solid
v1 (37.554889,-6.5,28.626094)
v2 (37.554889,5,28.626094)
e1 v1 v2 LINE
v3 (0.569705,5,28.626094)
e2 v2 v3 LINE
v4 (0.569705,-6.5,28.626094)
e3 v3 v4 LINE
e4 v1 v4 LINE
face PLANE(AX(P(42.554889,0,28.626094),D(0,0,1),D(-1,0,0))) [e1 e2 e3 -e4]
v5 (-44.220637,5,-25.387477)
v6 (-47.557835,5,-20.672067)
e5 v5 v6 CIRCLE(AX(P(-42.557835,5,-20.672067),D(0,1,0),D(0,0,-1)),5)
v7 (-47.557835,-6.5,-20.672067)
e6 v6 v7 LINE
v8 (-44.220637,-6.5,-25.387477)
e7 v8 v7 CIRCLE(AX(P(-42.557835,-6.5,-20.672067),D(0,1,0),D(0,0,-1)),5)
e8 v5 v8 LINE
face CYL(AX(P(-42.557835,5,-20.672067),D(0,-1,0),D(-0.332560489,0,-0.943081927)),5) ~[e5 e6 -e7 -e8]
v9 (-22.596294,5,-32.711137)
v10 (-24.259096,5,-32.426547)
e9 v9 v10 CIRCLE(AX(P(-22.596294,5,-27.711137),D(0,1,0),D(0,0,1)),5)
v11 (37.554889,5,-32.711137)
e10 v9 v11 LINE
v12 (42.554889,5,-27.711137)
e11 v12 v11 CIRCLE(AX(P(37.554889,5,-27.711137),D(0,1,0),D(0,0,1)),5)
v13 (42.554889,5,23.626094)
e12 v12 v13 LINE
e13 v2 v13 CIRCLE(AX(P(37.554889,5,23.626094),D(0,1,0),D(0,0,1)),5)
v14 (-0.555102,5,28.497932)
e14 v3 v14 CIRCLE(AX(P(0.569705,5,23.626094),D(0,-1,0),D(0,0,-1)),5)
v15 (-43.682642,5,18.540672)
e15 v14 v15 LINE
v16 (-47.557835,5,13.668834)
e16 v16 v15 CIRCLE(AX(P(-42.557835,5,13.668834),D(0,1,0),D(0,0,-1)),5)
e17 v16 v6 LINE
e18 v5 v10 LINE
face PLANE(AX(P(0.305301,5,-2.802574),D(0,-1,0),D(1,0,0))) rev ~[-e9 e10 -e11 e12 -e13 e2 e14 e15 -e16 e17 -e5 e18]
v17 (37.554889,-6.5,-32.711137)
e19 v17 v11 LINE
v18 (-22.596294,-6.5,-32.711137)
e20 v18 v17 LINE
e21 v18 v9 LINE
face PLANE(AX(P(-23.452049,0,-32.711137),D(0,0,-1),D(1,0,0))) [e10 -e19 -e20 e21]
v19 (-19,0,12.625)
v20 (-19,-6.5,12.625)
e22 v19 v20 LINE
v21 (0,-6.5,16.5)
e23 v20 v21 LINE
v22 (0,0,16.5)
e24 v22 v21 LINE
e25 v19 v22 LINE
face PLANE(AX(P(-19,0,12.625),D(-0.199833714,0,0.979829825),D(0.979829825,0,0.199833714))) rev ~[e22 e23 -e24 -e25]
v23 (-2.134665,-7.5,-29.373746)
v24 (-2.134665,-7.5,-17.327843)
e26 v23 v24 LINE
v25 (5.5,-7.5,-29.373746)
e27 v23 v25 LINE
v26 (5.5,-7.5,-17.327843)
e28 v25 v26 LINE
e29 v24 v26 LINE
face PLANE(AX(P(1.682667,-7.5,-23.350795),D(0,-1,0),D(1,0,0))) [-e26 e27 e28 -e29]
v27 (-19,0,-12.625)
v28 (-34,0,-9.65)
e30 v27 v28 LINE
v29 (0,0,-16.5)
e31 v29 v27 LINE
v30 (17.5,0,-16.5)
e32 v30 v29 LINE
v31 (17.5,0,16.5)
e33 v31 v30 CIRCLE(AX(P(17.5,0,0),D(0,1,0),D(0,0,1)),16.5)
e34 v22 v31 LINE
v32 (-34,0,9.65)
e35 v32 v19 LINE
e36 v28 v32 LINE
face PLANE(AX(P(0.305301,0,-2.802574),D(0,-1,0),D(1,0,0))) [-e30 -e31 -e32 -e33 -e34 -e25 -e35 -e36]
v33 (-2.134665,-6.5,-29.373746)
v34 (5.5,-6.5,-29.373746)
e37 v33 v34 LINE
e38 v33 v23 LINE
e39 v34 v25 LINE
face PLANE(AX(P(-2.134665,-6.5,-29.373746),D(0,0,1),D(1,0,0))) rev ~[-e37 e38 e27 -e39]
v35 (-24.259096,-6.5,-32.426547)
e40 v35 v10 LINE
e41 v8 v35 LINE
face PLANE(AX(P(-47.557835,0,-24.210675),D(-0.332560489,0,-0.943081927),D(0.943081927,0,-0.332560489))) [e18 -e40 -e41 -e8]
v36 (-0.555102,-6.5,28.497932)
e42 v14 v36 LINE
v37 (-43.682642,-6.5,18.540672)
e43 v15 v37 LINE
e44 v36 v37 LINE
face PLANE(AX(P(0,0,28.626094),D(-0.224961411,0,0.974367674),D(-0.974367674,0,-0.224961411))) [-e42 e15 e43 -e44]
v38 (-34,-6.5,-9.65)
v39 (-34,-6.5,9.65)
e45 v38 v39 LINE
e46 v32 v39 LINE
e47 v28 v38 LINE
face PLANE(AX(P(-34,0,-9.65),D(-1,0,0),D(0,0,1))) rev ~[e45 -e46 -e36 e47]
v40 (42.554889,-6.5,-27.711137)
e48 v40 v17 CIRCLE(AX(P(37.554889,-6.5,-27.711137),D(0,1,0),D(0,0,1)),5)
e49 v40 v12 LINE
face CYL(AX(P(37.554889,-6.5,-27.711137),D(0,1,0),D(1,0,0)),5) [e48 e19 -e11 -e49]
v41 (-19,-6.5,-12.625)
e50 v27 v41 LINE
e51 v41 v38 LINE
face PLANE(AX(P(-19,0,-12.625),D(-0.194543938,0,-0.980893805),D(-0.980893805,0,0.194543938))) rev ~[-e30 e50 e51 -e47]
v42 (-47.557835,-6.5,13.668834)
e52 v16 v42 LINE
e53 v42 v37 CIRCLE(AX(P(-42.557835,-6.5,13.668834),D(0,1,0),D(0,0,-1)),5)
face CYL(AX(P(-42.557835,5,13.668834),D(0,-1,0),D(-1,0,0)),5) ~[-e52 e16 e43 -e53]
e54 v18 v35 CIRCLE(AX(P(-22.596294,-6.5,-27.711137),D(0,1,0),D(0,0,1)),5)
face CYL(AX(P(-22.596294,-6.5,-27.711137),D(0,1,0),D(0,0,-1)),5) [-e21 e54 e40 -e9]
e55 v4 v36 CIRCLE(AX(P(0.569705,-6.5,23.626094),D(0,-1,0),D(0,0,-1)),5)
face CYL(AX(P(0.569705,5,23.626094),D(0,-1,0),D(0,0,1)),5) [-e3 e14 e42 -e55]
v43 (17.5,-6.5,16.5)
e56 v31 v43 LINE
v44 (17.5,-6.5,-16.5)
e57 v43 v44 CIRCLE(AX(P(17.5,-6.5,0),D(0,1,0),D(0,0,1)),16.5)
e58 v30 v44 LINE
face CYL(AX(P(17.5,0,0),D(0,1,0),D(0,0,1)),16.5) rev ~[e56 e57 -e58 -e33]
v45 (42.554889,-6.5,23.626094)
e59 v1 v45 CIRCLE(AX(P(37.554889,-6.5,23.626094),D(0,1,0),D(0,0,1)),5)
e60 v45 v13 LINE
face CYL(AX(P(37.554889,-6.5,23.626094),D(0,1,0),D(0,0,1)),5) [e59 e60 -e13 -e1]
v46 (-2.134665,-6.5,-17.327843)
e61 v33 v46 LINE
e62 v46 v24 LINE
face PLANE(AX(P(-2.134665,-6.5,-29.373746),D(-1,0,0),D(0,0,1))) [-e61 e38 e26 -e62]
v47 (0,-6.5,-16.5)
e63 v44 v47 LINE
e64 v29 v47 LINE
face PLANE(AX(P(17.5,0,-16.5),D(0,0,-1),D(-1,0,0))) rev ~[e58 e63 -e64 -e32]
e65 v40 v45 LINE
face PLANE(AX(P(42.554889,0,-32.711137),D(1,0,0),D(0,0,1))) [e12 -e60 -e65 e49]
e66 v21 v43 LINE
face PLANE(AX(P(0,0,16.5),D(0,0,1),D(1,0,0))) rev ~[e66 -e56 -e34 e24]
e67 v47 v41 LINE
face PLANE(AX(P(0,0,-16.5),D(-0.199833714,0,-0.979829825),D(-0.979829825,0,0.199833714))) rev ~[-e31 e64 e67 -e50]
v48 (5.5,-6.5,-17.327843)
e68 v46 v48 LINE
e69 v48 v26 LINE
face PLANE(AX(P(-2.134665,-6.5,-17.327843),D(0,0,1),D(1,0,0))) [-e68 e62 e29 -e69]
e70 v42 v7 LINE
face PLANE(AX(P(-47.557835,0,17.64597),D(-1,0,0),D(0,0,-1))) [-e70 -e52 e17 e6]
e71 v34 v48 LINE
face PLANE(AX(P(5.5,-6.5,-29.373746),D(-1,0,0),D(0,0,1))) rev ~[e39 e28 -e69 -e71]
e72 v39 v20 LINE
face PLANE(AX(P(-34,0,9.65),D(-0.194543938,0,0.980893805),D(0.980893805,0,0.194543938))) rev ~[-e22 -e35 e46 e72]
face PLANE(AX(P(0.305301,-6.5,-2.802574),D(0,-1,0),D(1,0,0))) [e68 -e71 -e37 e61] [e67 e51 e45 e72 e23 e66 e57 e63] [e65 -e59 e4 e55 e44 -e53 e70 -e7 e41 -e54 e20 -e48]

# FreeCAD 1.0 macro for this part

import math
import FreeCAD as App
import Part
import Sketcher

V = App.Vector


def edges_at(feature, points):
    """Names of the edges that pass closest to the given points."""
    edges = feature.Shape.Edges
    near = lambda p: min(range(len(edges)), key=lambda i: edges[i].distToShape(Part.Vertex(*p))[0])
    return sorted({f"Edge{near(p) + 1}" for p in points})

doc = App.newDocument("Part")
body = doc.addObject("PartDesign::Body", "Body")

sketch1 = body.newObject("Sketcher::SketchObject", "Sketch")
sketch1.AttachmentSupport = (doc.getObject("XZ_Plane"), [""])
sketch1.MapMode = "FlatFace"
sketch1.addGeometry([
    Part.LineSegment(V(43, 29, 0), V(0, 29, 0)),
    Part.LineSegment(V(0, 29, 0), V(-48, 18, 0)),
    Part.LineSegment(V(-48, 18, 0), V(-48, -24, 0)),
    Part.LineSegment(V(-48, -24, 0), V(-23, -33, 0)),
    Part.LineSegment(V(-23, -33, 0), V(43, -33, 0)),
    Part.LineSegment(V(43, -33, 0), V(43, 29, 0)),
    Part.LineSegment(V(-34, 10, 0), V(-19, 13, 0)),
    Part.LineSegment(V(-19, 13, 0), V(0, 16, 0)),
    Part.LineSegment(V(0, 16, 0), V(18, 16, 0)),
    Part.ArcOfCircle(Part.Circle(V(18, 0, 0), V(0, 0, 1), 16), math.radians(-90), math.radians(90)),
    Part.LineSegment(V(18, -16, 0), V(0, -16, 0)),
    Part.LineSegment(V(0, -16, 0), V(-19, -13, 0)),
    Part.LineSegment(V(-19, -13, 0), V(-34, -10, 0)),
    Part.LineSegment(V(-34, -10, 0), V(-34, 10, 0)),
], False)
sketch1.addConstraint([
    Sketcher.Constraint("Coincident", 0, 2, 1, 1),
    Sketcher.Constraint("Coincident", 1, 2, 2, 1),
    Sketcher.Constraint("Coincident", 2, 2, 3, 1),
    Sketcher.Constraint("Coincident", 3, 2, 4, 1),
    Sketcher.Constraint("Coincident", 4, 2, 5, 1),
    Sketcher.Constraint("Coincident", 5, 2, 0, 1),
    Sketcher.Constraint("Coincident", 6, 2, 7, 1),
    Sketcher.Constraint("Coincident", 7, 2, 8, 1),
    Sketcher.Constraint("Tangent", 8, 2, 9, 2),
    Sketcher.Constraint("Tangent", 9, 1, 10, 1),
    Sketcher.Constraint("Coincident", 10, 2, 11, 1),
    Sketcher.Constraint("Coincident", 11, 2, 12, 1),
    Sketcher.Constraint("Coincident", 12, 2, 13, 1),
    Sketcher.Constraint("Coincident", 13, 2, 6, 1),
    Sketcher.Constraint("Horizontal", 0),
    Sketcher.Constraint("Vertical", 2),
    Sketcher.Constraint("Horizontal", 4),
    Sketcher.Constraint("Vertical", 5),
    Sketcher.Constraint("Horizontal", 8),
    Sketcher.Constraint("Horizontal", 10),
    Sketcher.Constraint("Vertical", 13),
    Sketcher.Constraint("Symmetric", 7, 2, 10, 2, -1, 1),
    Sketcher.Constraint("Symmetric", 6, 2, 11, 2, -1),
    Sketcher.Constraint("PointOnObject", 0, 2, -2),
    Sketcher.Constraint("PointOnObject", 7, 2, -2),
    Sketcher.Constraint("Equal", 6, 12),
    Sketcher.Constraint("Radius", 9, 16.5),
    Sketcher.Constraint("DistanceX", 8, 1, 8, 2, 17.5),
    Sketcher.Constraint("DistanceY", 13, 1, 13, 2, 19.3),
    Sketcher.Constraint("DistanceX", 6, 2, -1, 1, 19.0),
    Sketcher.Constraint("DistanceX", 12, 2, -1, 1, 34.0),
    Sketcher.Constraint("DistanceY", 11, 2, 6, 2, 25.25),
    Sketcher.Constraint("DistanceX", 0, 2, 0, 1, 42.554889),
    Sketcher.Constraint("DistanceY", 5, 1, 5, 2, 61.337231),
    Sketcher.Constraint("Distance", 1, 48.808921),
    Sketcher.Constraint("Distance", 3, 25.560648),
    Sketcher.Constraint("DistanceX", 4, 1, 4, 2, 66.006938),
    Sketcher.Constraint("DistanceY", 2, 2, 2, 1, 41.856645),
    Sketcher.Constraint("DistanceY", -1, 1, 1, 2, 17.64597),
])
pad1 = body.newObject("PartDesign::Pad", "Pad")
pad1.Profile = sketch1
pad1.Length = 6.5

sketch2 = body.newObject("Sketcher::SketchObject", "Sketch001")
sketch2.AttachmentSupport = (doc.getObject("XZ_Plane"), [""])
sketch2.MapMode = "FlatFace"
sketch2.addGeometry([
    Part.LineSegment(V(43, 29, 0), V(0, 29, 0)),
    Part.LineSegment(V(0, 29, 0), V(-48, 18, 0)),
    Part.LineSegment(V(-48, 18, 0), V(-48, -24, 0)),
    Part.LineSegment(V(-48, -24, 0), V(-23, -33, 0)),
    Part.LineSegment(V(-23, -33, 0), V(43, -33, 0)),
    Part.LineSegment(V(43, -33, 0), V(43, 29, 0)),
], False)
sketch2.addConstraint([
    Sketcher.Constraint("Coincident", 0, 2, 1, 1),
    Sketcher.Constraint("Coincident", 1, 2, 2, 1),
    Sketcher.Constraint("Coincident", 2, 2, 3, 1),
    Sketcher.Constraint("Coincident", 3, 2, 4, 1),
    Sketcher.Constraint("Coincident", 4, 2, 5, 1),
    Sketcher.Constraint("Coincident", 5, 2, 0, 1),
    Sketcher.Constraint("Horizontal", 0),
    Sketcher.Constraint("Vertical", 2),
    Sketcher.Constraint("Horizontal", 4),
    Sketcher.Constraint("Vertical", 5),
    Sketcher.Constraint("PointOnObject", 0, 2, -2),
    Sketcher.Constraint("DistanceX", 0, 2, 0, 1, 42.554889),
    Sketcher.Constraint("DistanceY", 5, 1, 5, 2, 61.337231),
    Sketcher.Constraint("Distance", 1, 48.808921),
    Sketcher.Constraint("Distance", 3, 25.560648),
    Sketcher.Constraint("DistanceX", 4, 1, 4, 2, 66.006938),
    Sketcher.Constraint("DistanceY", 2, 2, 2, 1, 41.856645),
    Sketcher.Constraint("DistanceY", -1, 1, 1, 2, 17.64597),
])
pad2 = body.newObject("PartDesign::Pad", "Pad001")
pad2.Profile = sketch2
pad2.Length = 5
pad2.Reversed = True
doc.recompute()

fillet = body.newObject("PartDesign::Fillet", "Fillet")
fillet.Base = (pad2, edges_at(pad2, [
    (42.555, -0.75, 28.626),
    (42.555, -0.75, -32.711),
    (-47.558, -0.75, -24.211),
    (-47.558, -0.75, 17.646),
    (0, -0.75, 28.626),
    (-23.452, -0.75, -32.711),
]))
fillet.Radius = 5

sketch3 = body.newObject("Sketcher::SketchObject", "Sketch002")
sketch3.AttachmentSupport = (doc.getObject("XZ_Plane"), [""])
sketch3.MapMode = "FlatFace"
sketch3.AttachmentOffset = App.Placement(V(0, 0, 6.5), App.Rotation())
sketch3.addGeometry([
    Part.LineSegment(V(-2, -17, 0), V(-2, -29, 0)),
    Part.LineSegment(V(-2, -29, 0), V(6, -29, 0)),
    Part.LineSegment(V(6, -29, 0), V(6, -17, 0)),
    Part.LineSegment(V(6, -17, 0), V(-2, -17, 0)),
], False)
sketch3.addConstraint([
    Sketcher.Constraint("Coincident", 0, 2, 1, 1),
    Sketcher.Constraint("Coincident", 1, 2, 2, 1),
    Sketcher.Constraint("Coincident", 2, 2, 3, 1),
    Sketcher.Constraint("Coincident", 3, 2, 0, 1),
    Sketcher.Constraint("Vertical", 0),
    Sketcher.Constraint("Horizontal", 1),
    Sketcher.Constraint("Vertical", 2),
    Sketcher.Constraint("Horizontal", 3),
    Sketcher.Constraint("DistanceX", -1, 1, 1, 2, 5.5),
    Sketcher.Constraint("DistanceX", 1, 1, 1, 2, 7.634665),
    Sketcher.Constraint("DistanceY", 0, 2, 0, 1, 12.045903),
    Sketcher.Constraint("DistanceY", 0, 2, -1, 1, 29.373746),
])
pad3 = body.newObject("PartDesign::Pad", "Pad002")
pad3.Profile = sketch3
pad3.Length = 1

doc.recompute()
